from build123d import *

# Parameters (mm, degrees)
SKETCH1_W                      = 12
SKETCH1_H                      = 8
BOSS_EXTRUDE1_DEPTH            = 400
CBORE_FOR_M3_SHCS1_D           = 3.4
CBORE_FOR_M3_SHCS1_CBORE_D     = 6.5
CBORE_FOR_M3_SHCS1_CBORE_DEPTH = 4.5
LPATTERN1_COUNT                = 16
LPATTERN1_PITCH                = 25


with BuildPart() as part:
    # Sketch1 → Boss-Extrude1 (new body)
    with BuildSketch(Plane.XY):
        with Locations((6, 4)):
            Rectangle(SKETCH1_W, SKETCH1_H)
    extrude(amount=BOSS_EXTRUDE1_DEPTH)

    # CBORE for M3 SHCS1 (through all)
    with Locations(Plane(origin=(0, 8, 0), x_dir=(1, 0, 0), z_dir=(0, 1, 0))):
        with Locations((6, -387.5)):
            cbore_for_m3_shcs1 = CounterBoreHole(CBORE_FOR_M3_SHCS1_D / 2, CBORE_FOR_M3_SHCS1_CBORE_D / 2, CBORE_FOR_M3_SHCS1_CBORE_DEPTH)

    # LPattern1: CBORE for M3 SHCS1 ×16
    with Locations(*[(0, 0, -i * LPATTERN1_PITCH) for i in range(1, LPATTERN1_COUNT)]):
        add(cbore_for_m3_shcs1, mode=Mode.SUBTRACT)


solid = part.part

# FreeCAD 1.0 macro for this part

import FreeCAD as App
import Part
import Sketcher

V = App.Vector
Q = App.Units.Quantity

doc = App.newDocument("Part")
body = doc.addObject("PartDesign::Body", "Body")

sketch1 = body.newObject("Sketcher::SketchObject", "Sketch")
sketch1.AttachmentSupport = (doc.getObject("XY_Plane"), [""])
sketch1.MapMode = "FlatFace"
sketch1.addGeometry(Part.LineSegment(V(0, 8, 0), V(0, 0, 0)), False)
sketch1.addGeometry(Part.LineSegment(V(0, 0, 0), V(12, 0, 0)), False)
sketch1.addGeometry(Part.LineSegment(V(12, 0, 0), V(12, 8, 0)), False)
sketch1.addGeometry(Part.LineSegment(V(12, 8, 0), V(0, 8, 0)), False)
sketch1.addConstraint(Sketcher.Constraint("Coincident", 0, 2, 1, 1))
sketch1.addConstraint(Sketcher.Constraint("Coincident", 1, 2, 2, 1))
sketch1.addConstraint(Sketcher.Constraint("Coincident", 2, 2, 3, 1))
sketch1.addConstraint(Sketcher.Constraint("Coincident", 3, 2, 0, 1))
sketch1.addConstraint(Sketcher.Constraint("Vertical", 0))
sketch1.addConstraint(Sketcher.Constraint("Horizontal", 1))
sketch1.addConstraint(Sketcher.Constraint("Vertical", 2))
sketch1.addConstraint(Sketcher.Constraint("Horizontal", 3))
sketch1.addConstraint(Sketcher.Constraint("Coincident", 0, 2, -1, 1))
sketch1.addConstraint(Sketcher.Constraint("DistanceX", 1, 1, 1, 2, Q("12 mm")))
sketch1.addConstraint(Sketcher.Constraint("DistanceY", 0, 2, 0, 1, Q("8 mm")))
pad1 = body.newObject("PartDesign::Pad", "Pad")
pad1.Profile = sketch1
pad1.Length = 400

sketch2 = body.newObject("Sketcher::SketchObject", "Sketch001")
sketch2.AttachmentSupport = (doc.getObject("XZ_Plane"), [""])
sketch2.MapMode = "FlatFace"
sketch2.AttachmentOffset = App.Placement(V(0, 0, -8), App.Rotation())
sketch2.addGeometry(Part.Circle(V(6, 387.5, 0), V(0, 0, 1), 1.7), False)
sketch2.addConstraint(Sketcher.Constraint("Diameter", 0, Q("3.4 mm")))
sketch2.addConstraint(Sketcher.Constraint("DistanceX", -1, 1, 0, 3, Q("6 mm")))
sketch2.addConstraint(Sketcher.Constraint("DistanceY", -1, 1, 0, 3, Q("387.5 mm")))
doc.recompute()
hole = body.newObject("PartDesign::Hole", "Hole")
hole.Profile = sketch2
hole.ThreadType = "None"
hole.Diameter = 3.4
hole.DepthType = "ThroughAll"
hole.HoleCutType = "Counterbore"
hole.HoleCutDiameter = 6.5
hole.HoleCutDepth = 4.5
hole.Reversed = True
doc.recompute()

linearpattern = body.newObject("PartDesign::LinearPattern", "LinearPattern")
linearpattern.Originals = [hole]
linearpattern.Direction = (doc.getObject("Z_Axis"), [""])
linearpattern.Mode = "offset"
linearpattern.Offset = 25
linearpattern.Occurrences = 16
linearpattern.Reversed = True
body.Tip = linearpattern

doc.recompute()
